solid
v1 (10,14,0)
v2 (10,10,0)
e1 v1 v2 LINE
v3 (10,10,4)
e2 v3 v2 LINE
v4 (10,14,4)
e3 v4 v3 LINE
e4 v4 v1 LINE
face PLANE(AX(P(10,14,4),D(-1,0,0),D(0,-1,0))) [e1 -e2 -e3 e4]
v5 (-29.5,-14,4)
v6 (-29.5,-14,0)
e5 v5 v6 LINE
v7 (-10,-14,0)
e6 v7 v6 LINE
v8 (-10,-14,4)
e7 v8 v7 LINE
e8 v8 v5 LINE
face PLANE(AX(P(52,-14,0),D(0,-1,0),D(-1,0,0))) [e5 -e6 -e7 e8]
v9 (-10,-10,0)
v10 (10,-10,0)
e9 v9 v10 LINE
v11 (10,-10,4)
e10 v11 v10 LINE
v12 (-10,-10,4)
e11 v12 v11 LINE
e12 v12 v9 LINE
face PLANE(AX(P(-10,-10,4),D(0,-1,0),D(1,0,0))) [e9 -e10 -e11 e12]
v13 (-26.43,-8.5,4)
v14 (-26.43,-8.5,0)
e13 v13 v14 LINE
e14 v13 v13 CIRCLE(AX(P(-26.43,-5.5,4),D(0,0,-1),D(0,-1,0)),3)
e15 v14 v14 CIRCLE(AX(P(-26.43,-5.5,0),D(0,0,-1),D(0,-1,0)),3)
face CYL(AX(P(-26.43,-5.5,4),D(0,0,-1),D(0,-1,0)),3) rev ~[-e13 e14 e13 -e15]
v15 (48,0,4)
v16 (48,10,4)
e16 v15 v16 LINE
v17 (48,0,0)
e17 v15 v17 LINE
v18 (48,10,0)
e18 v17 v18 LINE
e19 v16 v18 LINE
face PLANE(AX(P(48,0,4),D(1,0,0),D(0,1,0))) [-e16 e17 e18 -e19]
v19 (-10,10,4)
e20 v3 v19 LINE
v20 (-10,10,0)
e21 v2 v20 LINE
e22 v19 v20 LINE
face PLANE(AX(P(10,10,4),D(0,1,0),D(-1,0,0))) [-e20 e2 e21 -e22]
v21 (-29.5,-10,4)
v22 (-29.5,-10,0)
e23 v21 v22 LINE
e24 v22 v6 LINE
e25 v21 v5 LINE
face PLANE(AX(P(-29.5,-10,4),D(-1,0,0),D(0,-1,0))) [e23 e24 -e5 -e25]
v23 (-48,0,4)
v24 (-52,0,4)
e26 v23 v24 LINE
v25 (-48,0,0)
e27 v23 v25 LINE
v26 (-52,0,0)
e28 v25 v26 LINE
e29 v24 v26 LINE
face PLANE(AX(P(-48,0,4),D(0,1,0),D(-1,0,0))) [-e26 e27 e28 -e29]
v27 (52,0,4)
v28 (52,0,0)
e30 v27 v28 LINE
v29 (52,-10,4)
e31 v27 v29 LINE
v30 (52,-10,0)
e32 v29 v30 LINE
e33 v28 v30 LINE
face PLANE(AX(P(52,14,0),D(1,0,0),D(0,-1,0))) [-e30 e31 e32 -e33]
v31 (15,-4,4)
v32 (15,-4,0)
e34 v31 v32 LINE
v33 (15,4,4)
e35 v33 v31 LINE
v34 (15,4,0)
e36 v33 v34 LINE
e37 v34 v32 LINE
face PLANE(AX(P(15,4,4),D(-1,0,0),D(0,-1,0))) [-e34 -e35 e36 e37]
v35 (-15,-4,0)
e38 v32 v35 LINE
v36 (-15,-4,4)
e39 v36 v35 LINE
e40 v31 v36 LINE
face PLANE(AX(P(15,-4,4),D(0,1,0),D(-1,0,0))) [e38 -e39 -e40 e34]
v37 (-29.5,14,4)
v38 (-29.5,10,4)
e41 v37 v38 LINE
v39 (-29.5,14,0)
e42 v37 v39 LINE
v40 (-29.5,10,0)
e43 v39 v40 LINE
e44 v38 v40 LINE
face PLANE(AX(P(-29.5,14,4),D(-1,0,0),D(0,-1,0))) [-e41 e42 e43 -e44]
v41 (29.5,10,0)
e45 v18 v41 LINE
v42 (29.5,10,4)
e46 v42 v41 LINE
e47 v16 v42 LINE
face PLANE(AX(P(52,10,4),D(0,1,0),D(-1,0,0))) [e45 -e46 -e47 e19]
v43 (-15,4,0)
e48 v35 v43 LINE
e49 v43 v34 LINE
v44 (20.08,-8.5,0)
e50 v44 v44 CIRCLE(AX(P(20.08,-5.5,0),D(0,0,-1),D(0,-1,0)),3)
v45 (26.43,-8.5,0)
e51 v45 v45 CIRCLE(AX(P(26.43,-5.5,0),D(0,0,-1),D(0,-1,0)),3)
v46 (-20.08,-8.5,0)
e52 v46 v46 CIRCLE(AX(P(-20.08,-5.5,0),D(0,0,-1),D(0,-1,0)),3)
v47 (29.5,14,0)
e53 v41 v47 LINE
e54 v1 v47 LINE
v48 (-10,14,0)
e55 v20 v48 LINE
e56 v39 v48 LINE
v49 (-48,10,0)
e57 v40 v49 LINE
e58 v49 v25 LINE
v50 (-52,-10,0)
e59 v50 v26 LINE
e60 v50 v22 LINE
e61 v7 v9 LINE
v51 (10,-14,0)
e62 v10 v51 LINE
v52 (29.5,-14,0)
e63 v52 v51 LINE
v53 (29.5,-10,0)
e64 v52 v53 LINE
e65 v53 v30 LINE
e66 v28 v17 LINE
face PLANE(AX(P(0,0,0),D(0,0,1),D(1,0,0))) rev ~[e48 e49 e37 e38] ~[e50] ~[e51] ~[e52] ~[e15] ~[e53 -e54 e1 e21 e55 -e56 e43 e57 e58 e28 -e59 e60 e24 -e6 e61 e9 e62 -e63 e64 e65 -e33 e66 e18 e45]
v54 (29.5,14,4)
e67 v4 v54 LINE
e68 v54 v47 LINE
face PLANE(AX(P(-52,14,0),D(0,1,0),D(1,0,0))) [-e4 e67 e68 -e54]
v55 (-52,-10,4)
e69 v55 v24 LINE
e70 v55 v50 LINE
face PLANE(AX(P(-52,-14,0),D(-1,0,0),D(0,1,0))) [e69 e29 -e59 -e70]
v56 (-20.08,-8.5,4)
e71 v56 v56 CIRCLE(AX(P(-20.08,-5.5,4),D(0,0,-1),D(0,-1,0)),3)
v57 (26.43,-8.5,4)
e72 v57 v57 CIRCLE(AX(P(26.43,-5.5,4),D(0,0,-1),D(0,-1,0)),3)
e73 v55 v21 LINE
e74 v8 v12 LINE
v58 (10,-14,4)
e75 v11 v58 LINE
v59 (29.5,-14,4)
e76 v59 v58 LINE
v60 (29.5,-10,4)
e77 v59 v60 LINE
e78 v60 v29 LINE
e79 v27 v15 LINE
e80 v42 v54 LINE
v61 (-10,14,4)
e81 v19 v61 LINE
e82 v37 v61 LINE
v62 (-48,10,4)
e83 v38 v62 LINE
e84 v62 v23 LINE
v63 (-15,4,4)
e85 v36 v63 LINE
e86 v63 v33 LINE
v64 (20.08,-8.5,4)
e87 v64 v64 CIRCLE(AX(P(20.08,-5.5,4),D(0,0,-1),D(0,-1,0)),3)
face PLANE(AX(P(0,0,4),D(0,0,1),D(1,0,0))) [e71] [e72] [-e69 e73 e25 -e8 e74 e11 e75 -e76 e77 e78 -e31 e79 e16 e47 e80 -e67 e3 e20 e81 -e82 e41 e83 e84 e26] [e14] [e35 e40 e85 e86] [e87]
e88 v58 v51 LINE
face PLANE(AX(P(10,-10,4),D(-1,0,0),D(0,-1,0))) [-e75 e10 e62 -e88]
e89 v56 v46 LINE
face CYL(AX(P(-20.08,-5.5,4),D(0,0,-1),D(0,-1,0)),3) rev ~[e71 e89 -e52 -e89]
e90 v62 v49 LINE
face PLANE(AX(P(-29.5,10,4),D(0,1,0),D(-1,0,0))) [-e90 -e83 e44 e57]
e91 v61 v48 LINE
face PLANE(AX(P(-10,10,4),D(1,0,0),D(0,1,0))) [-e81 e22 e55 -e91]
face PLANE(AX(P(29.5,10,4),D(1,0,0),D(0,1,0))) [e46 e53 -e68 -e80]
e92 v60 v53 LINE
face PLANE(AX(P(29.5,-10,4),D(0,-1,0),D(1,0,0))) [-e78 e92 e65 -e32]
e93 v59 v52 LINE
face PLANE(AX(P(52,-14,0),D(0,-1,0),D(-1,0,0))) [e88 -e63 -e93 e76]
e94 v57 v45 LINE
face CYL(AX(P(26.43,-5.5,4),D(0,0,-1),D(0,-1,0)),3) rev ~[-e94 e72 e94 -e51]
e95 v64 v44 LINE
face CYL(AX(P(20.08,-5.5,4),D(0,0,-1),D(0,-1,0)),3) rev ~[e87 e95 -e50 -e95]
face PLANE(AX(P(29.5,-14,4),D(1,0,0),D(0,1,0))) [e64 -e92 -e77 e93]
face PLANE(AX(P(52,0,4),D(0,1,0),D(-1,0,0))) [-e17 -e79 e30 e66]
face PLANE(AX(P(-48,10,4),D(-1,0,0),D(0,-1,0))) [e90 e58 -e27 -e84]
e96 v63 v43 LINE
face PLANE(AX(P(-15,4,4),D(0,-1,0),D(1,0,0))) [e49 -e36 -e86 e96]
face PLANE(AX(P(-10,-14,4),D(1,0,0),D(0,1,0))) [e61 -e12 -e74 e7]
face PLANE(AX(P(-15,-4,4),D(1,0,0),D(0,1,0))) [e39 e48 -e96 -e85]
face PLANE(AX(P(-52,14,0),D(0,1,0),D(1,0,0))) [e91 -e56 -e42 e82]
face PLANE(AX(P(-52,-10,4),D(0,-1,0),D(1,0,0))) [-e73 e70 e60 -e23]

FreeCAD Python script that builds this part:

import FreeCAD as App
import Part
import Sketcher
Q = App.Units.Quantity

doc = App.newDocument("Part")
params = doc.addObject("Spreadsheet::Sheet", "Params")
for row, (alias, value) in enumerate([
    ("sketch1_width", "104 mm"),
    ("sketch1_height", "28 mm"),
    ("pad1_length", "4 mm"),
    ("sketch2_width", "20 mm"),
    ("sketch2_height", "4 mm"),
    ("sketch2_width2", "22.5 mm"),
    ("pocket1_length", "4 mm"),
    ("sketch3_width", "4 mm"),
    ("sketch3_height", "10 mm"),
    ("pocket2_length", "4 mm"),
    ("sketch4_width", "30 mm"),
    ("sketch4_height", "8 mm"),
    ("pocket3_length", "4 mm"),
    ("sketch5_diameter", "6 mm"),
    ("hole_diameter", "6 mm"),
], start=1):
    params.set(f"A{row}", alias)
    params.set(f"B{row}", "=" + value)
    params.setAlias(f"B{row}", alias)

body = doc.addObject("PartDesign::Body", "Body")

# Sketch on XY plane
sketch1 = body.newObject("Sketcher::SketchObject", "Sketch")
sketch1.AttachmentSupport = (doc.getObject("XY_Plane"), [""])
sketch1.MapMode = "FlatFace"
sketch1.addGeometry(Part.LineSegment(App.Vector(52, 14, 0), App.Vector(-52, 14, 0)), False)
sketch1.addGeometry(Part.LineSegment(App.Vector(-52, 14, 0), App.Vector(-52, -14, 0)), False)
sketch1.addGeometry(Part.LineSegment(App.Vector(-52, -14, 0), App.Vector(52, -14, 0)), False)
sketch1.addGeometry(Part.LineSegment(App.Vector(52, -14, 0), App.Vector(52, 14, 0)), False)
sketch1.addConstraint(Sketcher.Constraint("Coincident", 0, 2, 1, 1))
sketch1.addConstraint(Sketcher.Constraint("Coincident", 1, 2, 2, 1))
sketch1.addConstraint(Sketcher.Constraint("Coincident", 2, 2, 3, 1))
sketch1.addConstraint(Sketcher.Constraint("Coincident", 3, 2, 0, 1))
sketch1.addConstraint(Sketcher.Constraint("Horizontal", 0))
sketch1.addConstraint(Sketcher.Constraint("Vertical", 1))
sketch1.addConstraint(Sketcher.Constraint("Horizontal", 2))
sketch1.addConstraint(Sketcher.Constraint("Vertical", 3))
sketch1.addConstraint(Sketcher.Constraint("Symmetric", 0, 2, 2, 2, -1, 1))
sketch1.addConstraint(Sketcher.Constraint("DistanceX", 0, 2, 0, 1, Q("104 mm")))
sketch1.addConstraint(Sketcher.Constraint("DistanceY", 1, 2, 1, 1, Q("28 mm")))
sketch1.setExpression("Constraints[9]", "Params.sketch1_width")
sketch1.setExpression("Constraints[10]", "Params.sketch1_height")
pad1 = body.newObject("PartDesign::Pad", "Pad")
pad1.Profile = sketch1
pad1.setExpression("Length", "Params.pad1_length")

# Sketch on XY plane
sketch2 = body.newObject("Sketcher::SketchObject", "Sketch001")
sketch2.AttachmentSupport = (doc.getObject("XY_Plane"), [""])
sketch2.MapMode = "FlatFace"
sketch2.AttachmentOffset = App.Placement(App.Vector(0, 0, 4), App.Rotation())
sketch2.addGeometry(Part.LineSegment(App.Vector(52, 10, 0), App.Vector(52, 14, 0)), False)
sketch2.addGeometry(Part.LineSegment(App.Vector(52, 14, 0), App.Vector(29.5, 14, 0)), False)
sketch2.addGeometry(Part.LineSegment(App.Vector(29.5, 14, 0), App.Vector(29.5, 10, 0)), False)
sketch2.addGeometry(Part.LineSegment(App.Vector(29.5, 10, 0), App.Vector(52, 10, 0)), False)
sketch2.addGeometry(Part.LineSegment(App.Vector(52, -14, 0), App.Vector(52, -10, 0)), False)
sketch2.addGeometry(Part.LineSegment(App.Vector(52, -10, 0), App.Vector(29.5, -10, 0)), False)
sketch2.addGeometry(Part.LineSegment(App.Vector(29.5, -10, 0), App.Vector(29.5, -14, 0)), False)
sketch2.addGeometry(Part.LineSegment(App.Vector(29.5, -14, 0), App.Vector(52, -14, 0)), False)
sketch2.addGeometry(Part.LineSegment(App.Vector(10, 10, 0), App.Vector(10, 14, 0)), False)
sketch2.addGeometry(Part.LineSegment(App.Vector(10, 14, 0), App.Vector(-10, 14, 0)), False)
sketch2.addGeometry(Part.LineSegment(App.Vector(-10, 14, 0), App.Vector(-10, 10, 0)), False)
sketch2.addGeometry(Part.LineSegment(App.Vector(-10, 10, 0), App.Vector(10, 10, 0)), False)
sketch2.addGeometry(Part.LineSegment(App.Vector(-29.5, 10, 0), App.Vector(-29.5, 14, 0)), False)
sketch2.addGeometry(Part.LineSegment(App.Vector(-29.5, 14, 0), App.Vector(-52, 14, 0)), False)
sketch2.addGeometry(Part.LineSegment(App.Vector(-52, 14, 0), App.Vector(-52, 10, 0)), False)
sketch2.addGeometry(Part.LineSegment(App.Vector(-52, 10, 0), App.Vector(-29.5, 10, 0)), False)
sketch2.addGeometry(Part.LineSegment(App.Vector(-10, -14, 0), App.Vector(10, -14, 0)), False)
sketch2.addGeometry(Part.LineSegment(App.Vector(10, -14, 0), App.Vector(10, -10, 0)), False)
sketch2.addGeometry(Part.LineSegment(App.Vector(10, -10, 0), App.Vector(-10, -10, 0)), False)
sketch2.addGeometry(Part.LineSegment(App.Vector(-10, -10, 0), App.Vector(-10, -14, 0)), False)
sketch2.addGeometry(Part.LineSegment(App.Vector(-52, -14, 0), App.Vector(-29.5, -14, 0)), False)
sketch2.addGeometry(Part.LineSegment(App.Vector(-29.5, -14, 0), App.Vector(-29.5, -10, 0)), False)
sketch2.addGeometry(Part.LineSegment(App.Vector(-29.5, -10, 0), App.Vector(-52, -10, 0)), False)
sketch2.addGeometry(Part.LineSegment(App.Vector(-52, -10, 0), App.Vector(-52, -14, 0)), False)
sketch2.addConstraint(Sketcher.Constraint("Coincident", 0, 2, 1, 1))
sketch2.addConstraint(Sketcher.Constraint("Coincident", 1, 2, 2, 1))
sketch2.addConstraint(Sketcher.Constraint("Coincident", 2, 2, 3, 1))
sketch2.addConstraint(Sketcher.Constraint("Coincident", 3, 2, 0, 1))
sketch2.addConstraint(Sketcher.Constraint("Coincident", 4, 2, 5, 1))
sketch2.addConstraint(Sketcher.Constraint("Coincident", 5, 2, 6, 1))
sketch2.addConstraint(Sketcher.Constraint("Coincident", 6, 2, 7, 1))
sketch2.addConstraint(Sketcher.Constraint("Coincident", 7, 2, 4, 1))
sketch2.addConstraint(Sketcher.Constraint("Coincident", 8, 2, 9, 1))
sketch2.addConstraint(Sketcher.Constraint("Coincident", 9, 2, 10, 1))
sketch2.addConstraint(Sketcher.Constraint("Coincident", 10, 2, 11, 1))
sketch2.addConstraint(Sketcher.Constraint("Coincident", 11, 2, 8, 1))
sketch2.addConstraint(Sketcher.Constraint("Coincident", 12, 2, 13, 1))
sketch2.addConstraint(Sketcher.Constraint("Coincident", 13, 2, 14, 1))
sketch2.addConstraint(Sketcher.Constraint("Coincident", 14, 2, 15, 1))
sketch2.addConstraint(Sketcher.Constraint("Coincident", 15, 2, 12, 1))
sketch2.addConstraint(Sketcher.Constraint("Coincident", 16, 2, 17, 1))
sketch2.addConstraint(Sketcher.Constraint("Coincident", 17, 2, 18, 1))
sketch2.addConstraint(Sketcher.Constraint("Coincident", 18, 2, 19, 1))
sketch2.addConstraint(Sketcher.Constraint("Coincident", 19, 2, 16, 1))
sketch2.addConstraint(Sketcher.Constraint("Coincident", 20, 2, 21, 1))
sketch2.addConstraint(Sketcher.Constraint("Coincident", 21, 2, 22, 1))
sketch2.addConstraint(Sketcher.Constraint("Coincident", 22, 2, 23, 1))
sketch2.addConstraint(Sketcher.Constraint("Coincident", 23, 2, 20, 1))
sketch2.addConstraint(Sketcher.Constraint("Vertical", 0))
sketch2.addConstraint(Sketcher.Constraint("Horizontal", 1))
sketch2.addConstraint(Sketcher.Constraint("Vertical", 2))
sketch2.addConstraint(Sketcher.Constraint("Horizontal", 3))
sketch2.addConstraint(Sketcher.Constraint("Vertical", 4))
sketch2.addConstraint(Sketcher.Constraint("Horizontal", 5))
sketch2.addConstraint(Sketcher.Constraint("Vertical", 6))
sketch2.addConstraint(Sketcher.Constraint("Horizontal", 7))
sketch2.addConstraint(Sketcher.Constraint("Vertical", 8))
sketch2.addConstraint(Sketcher.Constraint("Horizontal", 9))
sketch2.addConstraint(Sketcher.Constraint("Vertical", 10))
sketch2.addConstraint(Sketcher.Constraint("Horizontal", 11))
sketch2.addConstraint(Sketcher.Constraint("Vertical", 12))
sketch2.addConstraint(Sketcher.Constraint("Horizontal", 13))
sketch2.addConstraint(Sketcher.Constraint("Vertical", 14))
sketch2.addConstraint(Sketcher.Constraint("Horizontal", 15))
sketch2.addConstraint(Sketcher.Constraint("Horizontal", 16))
sketch2.addConstraint(Sketcher.Constraint("Vertical", 17))
sketch2.addConstraint(Sketcher.Constraint("Horizontal", 18))
sketch2.addConstraint(Sketcher.Constraint("Vertical", 19))
sketch2.addConstraint(Sketcher.Constraint("Horizontal", 20))
sketch2.addConstraint(Sketcher.Constraint("Vertical", 21))
sketch2.addConstraint(Sketcher.Constraint("Horizontal", 22))
sketch2.addConstraint(Sketcher.Constraint("Vertical", 23))
sketch2.addConstraint(Sketcher.Constraint("Symmetric", 6, 2, 12, 2, -1, 1))
sketch2.addConstraint(Sketcher.Constraint("Symmetric", 4, 2, 14, 2, -1, 1))
sketch2.addConstraint(Sketcher.Constraint("Symmetric", 9, 2, 16, 2, -1, 1))
sketch2.addConstraint(Sketcher.Constraint("Symmetric", 11, 2, 18, 2, -1, 1))
sketch2.addConstraint(Sketcher.Constraint("Symmetric", 1, 2, 20, 2, -1, 1))
sketch2.addConstraint(Sketcher.Constraint("Symmetric", 3, 2, 22, 2, -1, 1))
sketch2.addConstraint(Sketcher.Constraint("Symmetric", 1, 2, 12, 2, -2))
sketch2.addConstraint(Sketcher.Constraint("Symmetric", 3, 2, 14, 2, -2))
sketch2.addConstraint(Sketcher.Constraint("Horizontal", 1, 2, 8, 2))
sketch2.addConstraint(Sketcher.Constraint("Horizontal", 3, 2, 10, 2))
sketch2.addConstraint(Sketcher.Constraint("Vertical", 11, 2, 16, 2))
sketch2.addConstraint(Sketcher.Constraint("DistanceX", 9, 2, 9, 1, Q("20 mm")))
sketch2.addConstraint(Sketcher.Constraint("DistanceY", 0, 1, 0, 2, Q("4 mm")))
sketch2.addConstraint(Sketcher.Constraint("DistanceX", 1, 2, 1, 1, Q("22.5 mm")))
sketch2.addConstraint(Sketcher.Constraint("DistanceY", -1, 1, 2, 2, Q("10 mm")))
sketch2.addConstraint(Sketcher.Constraint("DistanceX", -1, 1, 0, 2, Q("52 mm")))
sketch2.setExpression("Constraints[59]", "Params.sketch2_width")
sketch2.setExpression("Constraints[60]", "Params.sketch2_height")
sketch2.setExpression("Constraints[61]", "Params.sketch2_width2")
pocket1 = body.newObject("PartDesign::Pocket", "Pocket")
pocket1.Profile = sketch2
pocket1.setExpression("Length", "Params.pocket1_length")

# Sketch on XY plane
sketch3 = body.newObject("Sketcher::SketchObject", "Sketch002")
sketch3.AttachmentSupport = (doc.getObject("XY_Plane"), [""])
sketch3.MapMode = "FlatFace"
sketch3.AttachmentOffset = App.Placement(App.Vector(0, 0, 4), App.Rotation())
sketch3.addGeometry(Part.LineSegment(App.Vector(52, 0, 0), App.Vector(52, 10, 0)), False)
sketch3.addGeometry(Part.LineSegment(App.Vector(52, 10, 0), App.Vector(48, 10, 0)), False)
sketch3.addGeometry(Part.LineSegment(App.Vector(48, 10, 0), App.Vector(48, 0, 0)), False)
sketch3.addGeometry(Part.LineSegment(App.Vector(48, 0, 0), App.Vector(52, 0, 0)), False)
sketch3.addGeometry(Part.LineSegment(App.Vector(-48, 0, 0), App.Vector(-48, 10, 0)), False)
sketch3.addGeometry(Part.LineSegment(App.Vector(-48, 10, 0), App.Vector(-52, 10, 0)), False)
sketch3.addGeometry(Part.LineSegment(App.Vector(-52, 10, 0), App.Vector(-52, 0, 0)), False)
sketch3.addGeometry(Part.LineSegment(App.Vector(-52, 0, 0), App.Vector(-48, 0, 0)), False)
sketch3.addConstraint(Sketcher.Constraint("Coincident", 0, 2, 1, 1))
sketch3.addConstraint(Sketcher.Constraint("Coincident", 1, 2, 2, 1))
sketch3.addConstraint(Sketcher.Constraint("Coincident", 2, 2, 3, 1))
sketch3.addConstraint(Sketcher.Constraint("Coincident", 3, 2, 0, 1))
sketch3.addConstraint(Sketcher.Constraint("Coincident", 4, 2, 5, 1))
sketch3.addConstraint(Sketcher.Constraint("Coincident", 5, 2, 6, 1))
sketch3.addConstraint(Sketcher.Constraint("Coincident", 6, 2, 7, 1))
sketch3.addConstraint(Sketcher.Constraint("Coincident", 7, 2, 4, 1))
sketch3.addConstraint(Sketcher.Constraint("Vertical", 0))
sketch3.addConstraint(Sketcher.Constraint("Horizontal", 1))
sketch3.addConstraint(Sketcher.Constraint("Vertical", 2))
sketch3.addConstraint(Sketcher.Constraint("Horizontal", 3))
sketch3.addConstraint(Sketcher.Constraint("Vertical", 4))
sketch3.addConstraint(Sketcher.Constraint("Horizontal", 5))
sketch3.addConstraint(Sketcher.Constraint("Vertical", 6))
sketch3.addConstraint(Sketcher.Constraint("Horizontal", 7))
sketch3.addConstraint(Sketcher.Constraint("Symmetric", 3, 2, 6, 2, -1, 1))
sketch3.addConstraint(Sketcher.Constraint("Symmetric", 1, 2, 4, 2, -2))
sketch3.addConstraint(Sketcher.Constraint("PointOnObject", 2, 2, -1))
sketch3.addConstraint(Sketcher.Constraint("DistanceX", 1, 2, 1, 1, Q("4 mm")))
sketch3.addConstraint(Sketcher.Constraint("DistanceY", 0, 1, 0, 2, Q("10 mm")))
sketch3.addConstraint(Sketcher.Constraint("DistanceX", -1, 1, 0, 2, Q("52 mm")))
sketch3.setExpression("Constraints[19]", "Params.sketch3_width")
sketch3.setExpression("Constraints[20]", "Params.sketch3_height")
pocket2 = body.newObject("PartDesign::Pocket", "Pocket001")
pocket2.Profile = sketch3
pocket2.setExpression("Length", "Params.pocket2_length")

# Sketch on XY plane
sketch4 = body.newObject("Sketcher::SketchObject", "Sketch003")
sketch4.AttachmentSupport = (doc.getObject("XY_Plane"), [""])
sketch4.MapMode = "FlatFace"
sketch4.AttachmentOffset = App.Placement(App.Vector(0, 0, 4), App.Rotation())
sketch4.addGeometry(Part.LineSegment(App.Vector(15, 4, 0), App.Vector(-15, 4, 0)), False)
sketch4.addGeometry(Part.LineSegment(App.Vector(-15, 4, 0), App.Vector(-15, -4, 0)), False)
sketch4.addGeometry(Part.LineSegment(App.Vector(-15, -4, 0), App.Vector(15, -4, 0)), False)
sketch4.addGeometry(Part.LineSegment(App.Vector(15, -4, 0), App.Vector(15, 4, 0)), False)
sketch4.addConstraint(Sketcher.Constraint("Coincident", 0, 2, 1, 1))
sketch4.addConstraint(Sketcher.Constraint("Coincident", 1, 2, 2, 1))
sketch4.addConstraint(Sketcher.Constraint("Coincident", 2, 2, 3, 1))
sketch4.addConstraint(Sketcher.Constraint("Coincident", 3, 2, 0, 1))
sketch4.addConstraint(Sketcher.Constraint("Horizontal", 0))
sketch4.addConstraint(Sketcher.Constraint("Vertical", 1))
sketch4.addConstraint(Sketcher.Constraint("Horizontal", 2))
sketch4.addConstraint(Sketcher.Constraint("Vertical", 3))
sketch4.addConstraint(Sketcher.Constraint("Symmetric", 0, 2, 2, 2, -1, 1))
sketch4.addConstraint(Sketcher.Constraint("DistanceX", 0, 2, 0, 1, Q("30 mm")))
sketch4.addConstraint(Sketcher.Constraint("DistanceY", 1, 2, 1, 1, Q("8 mm")))
sketch4.setExpression("Constraints[9]", "Params.sketch4_width")
sketch4.setExpression("Constraints[10]", "Params.sketch4_height")
pocket3 = body.newObject("PartDesign::Pocket", "Pocket002")
pocket3.Profile = sketch4
pocket3.setExpression("Length", "Params.pocket3_length")

# Sketch on XY plane
sketch5 = body.newObject("Sketcher::SketchObject", "Sketch004")
sketch5.AttachmentSupport = (doc.getObject("XY_Plane"), [""])
sketch5.MapMode = "FlatFace"
sketch5.AttachmentOffset = App.Placement(App.Vector(0, 0, 4), App.Rotation())
sketch5.addGeometry(Part.Circle(App.Vector(20.1, -5.5, 0), App.Vector(0, 0, 1), 3), False)
sketch5.addGeometry(Part.Circle(App.Vector(26.4, -5.5, 0), App.Vector(0, 0, 1), 3), False)
sketch5.addGeometry(Part.Circle(App.Vector(-20.1, -5.5, 0), App.Vector(0, 0, 1), 3), False)
sketch5.addGeometry(Part.Circle(App.Vector(-26.4, -5.5, 0), App.Vector(0, 0, 1), 3), False)
sketch5.addConstraint(Sketcher.Constraint("Equal", 0, 1))
sketch5.addConstraint(Sketcher.Constraint("Equal", 1, 2))
sketch5.addConstraint(Sketcher.Constraint("Equal", 2, 3))
sketch5.addConstraint(Sketcher.Constraint("Symmetric", 0, 3, 2, 3, -2))
sketch5.addConstraint(Sketcher.Constraint("Symmetric", 1, 3, 3, 3, -2))
sketch5.addConstraint(Sketcher.Constraint("Horizontal", 0, 3, 1, 3))
sketch5.addConstraint(Sketcher.Constraint("Diameter", 0, Q("6 mm")))
sketch5.addConstraint(Sketcher.Constraint("DistanceY", 0, 3, -1, 1, Q("5.5 mm")))
sketch5.addConstraint(Sketcher.Constraint("DistanceX", -1, 1, 0, 3, Q("20.08 mm")))
sketch5.addConstraint(Sketcher.Constraint("DistanceX", -1, 1, 1, 3, Q("26.43 mm")))
sketch5.setExpression("Constraints[6]", "Params.sketch5_diameter")
doc.recompute()
hole = body.newObject("PartDesign::Hole", "Hole")
hole.Profile = sketch5
hole.ThreadType = "None"
hole.setExpression("Diameter", "Params.hole_diameter")
hole.DepthType = "ThroughAll"

doc.recompute()
